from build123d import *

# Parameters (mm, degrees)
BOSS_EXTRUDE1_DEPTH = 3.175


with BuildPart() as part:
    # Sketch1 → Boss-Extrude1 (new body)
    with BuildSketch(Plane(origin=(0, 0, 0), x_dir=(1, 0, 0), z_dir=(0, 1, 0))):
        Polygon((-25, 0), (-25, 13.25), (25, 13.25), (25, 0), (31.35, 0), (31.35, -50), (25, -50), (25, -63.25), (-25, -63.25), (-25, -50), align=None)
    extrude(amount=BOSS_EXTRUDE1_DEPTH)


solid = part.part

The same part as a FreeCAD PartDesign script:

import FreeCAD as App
import Part
import Sketcher
from FreeCAD import Vector
Q = App.Units.Quantity


def add_polygon(sketch, points):
    """Adds a closed chain of lines whose ends are joined by coincident constraints."""
    first, n = sketch.GeometryCount, len(points)
    for a, b in zip(points, points[1:] + points[:1]):
        sketch.addGeometry(Part.LineSegment(App.Vector(*a, 0), App.Vector(*b, 0)), False)
    for i in range(n):
        sketch.addConstraint(Sketcher.Constraint("Coincident", first + i, 2, first + (i + 1) % n, 1))

doc = App.newDocument("Part")
body = doc.addObject("PartDesign::Body", "Body")

# Sketch on XZ plane
sketch1 = body.newObject("Sketcher::SketchObject", "Sketch")
sketch1.AttachmentSupport = (doc.getObject("XZ_Plane"), [""])
sketch1.MapMode = "FlatFace"
add_polygon(sketch1, [(-25, -13), (-25, 63), (25, 63), (25, 50), (31, 50), (31, 0), (25, 0), (25, -13)])  # lines 0-7
sketch1.addConstraint([
    Sketcher.Constraint("Vertical", 0),
    Sketcher.Constraint("Horizontal", 1),
    Sketcher.Constraint("Vertical", 2),
    Sketcher.Constraint("Horizontal", 3),
    Sketcher.Constraint("Vertical", 4),
    Sketcher.Constraint("Horizontal", 5),
    Sketcher.Constraint("Vertical", 6),
    Sketcher.Constraint("Horizontal", 7),
    Sketcher.Constraint("PointOnObject", 4, 2, -1),
    Sketcher.Constraint("Vertical", 2, 2, 5, 2),
    Sketcher.Constraint("Equal", 7, 4),
    Sketcher.Constraint("Equal", 2, 6),
    Sketcher.Constraint("DistanceX", 1, 1, 1, 2, Q("50 mm")),
    Sketcher.Constraint("DistanceY", 0, 1, 0, 2, Q("76.5 mm")),
    Sketcher.Constraint("DistanceX", 0, 2, -1, 1, Q("25 mm")),
    Sketcher.Constraint("DistanceX", 3, 1, 3, 2, Q("6.35 mm")),
])
pad1 = body.newObject("PartDesign::Pad", "Pad")
pad1.Profile = sketch1
pad1.Length = 3.175
pad1.Reversed = True

doc.recompute()
